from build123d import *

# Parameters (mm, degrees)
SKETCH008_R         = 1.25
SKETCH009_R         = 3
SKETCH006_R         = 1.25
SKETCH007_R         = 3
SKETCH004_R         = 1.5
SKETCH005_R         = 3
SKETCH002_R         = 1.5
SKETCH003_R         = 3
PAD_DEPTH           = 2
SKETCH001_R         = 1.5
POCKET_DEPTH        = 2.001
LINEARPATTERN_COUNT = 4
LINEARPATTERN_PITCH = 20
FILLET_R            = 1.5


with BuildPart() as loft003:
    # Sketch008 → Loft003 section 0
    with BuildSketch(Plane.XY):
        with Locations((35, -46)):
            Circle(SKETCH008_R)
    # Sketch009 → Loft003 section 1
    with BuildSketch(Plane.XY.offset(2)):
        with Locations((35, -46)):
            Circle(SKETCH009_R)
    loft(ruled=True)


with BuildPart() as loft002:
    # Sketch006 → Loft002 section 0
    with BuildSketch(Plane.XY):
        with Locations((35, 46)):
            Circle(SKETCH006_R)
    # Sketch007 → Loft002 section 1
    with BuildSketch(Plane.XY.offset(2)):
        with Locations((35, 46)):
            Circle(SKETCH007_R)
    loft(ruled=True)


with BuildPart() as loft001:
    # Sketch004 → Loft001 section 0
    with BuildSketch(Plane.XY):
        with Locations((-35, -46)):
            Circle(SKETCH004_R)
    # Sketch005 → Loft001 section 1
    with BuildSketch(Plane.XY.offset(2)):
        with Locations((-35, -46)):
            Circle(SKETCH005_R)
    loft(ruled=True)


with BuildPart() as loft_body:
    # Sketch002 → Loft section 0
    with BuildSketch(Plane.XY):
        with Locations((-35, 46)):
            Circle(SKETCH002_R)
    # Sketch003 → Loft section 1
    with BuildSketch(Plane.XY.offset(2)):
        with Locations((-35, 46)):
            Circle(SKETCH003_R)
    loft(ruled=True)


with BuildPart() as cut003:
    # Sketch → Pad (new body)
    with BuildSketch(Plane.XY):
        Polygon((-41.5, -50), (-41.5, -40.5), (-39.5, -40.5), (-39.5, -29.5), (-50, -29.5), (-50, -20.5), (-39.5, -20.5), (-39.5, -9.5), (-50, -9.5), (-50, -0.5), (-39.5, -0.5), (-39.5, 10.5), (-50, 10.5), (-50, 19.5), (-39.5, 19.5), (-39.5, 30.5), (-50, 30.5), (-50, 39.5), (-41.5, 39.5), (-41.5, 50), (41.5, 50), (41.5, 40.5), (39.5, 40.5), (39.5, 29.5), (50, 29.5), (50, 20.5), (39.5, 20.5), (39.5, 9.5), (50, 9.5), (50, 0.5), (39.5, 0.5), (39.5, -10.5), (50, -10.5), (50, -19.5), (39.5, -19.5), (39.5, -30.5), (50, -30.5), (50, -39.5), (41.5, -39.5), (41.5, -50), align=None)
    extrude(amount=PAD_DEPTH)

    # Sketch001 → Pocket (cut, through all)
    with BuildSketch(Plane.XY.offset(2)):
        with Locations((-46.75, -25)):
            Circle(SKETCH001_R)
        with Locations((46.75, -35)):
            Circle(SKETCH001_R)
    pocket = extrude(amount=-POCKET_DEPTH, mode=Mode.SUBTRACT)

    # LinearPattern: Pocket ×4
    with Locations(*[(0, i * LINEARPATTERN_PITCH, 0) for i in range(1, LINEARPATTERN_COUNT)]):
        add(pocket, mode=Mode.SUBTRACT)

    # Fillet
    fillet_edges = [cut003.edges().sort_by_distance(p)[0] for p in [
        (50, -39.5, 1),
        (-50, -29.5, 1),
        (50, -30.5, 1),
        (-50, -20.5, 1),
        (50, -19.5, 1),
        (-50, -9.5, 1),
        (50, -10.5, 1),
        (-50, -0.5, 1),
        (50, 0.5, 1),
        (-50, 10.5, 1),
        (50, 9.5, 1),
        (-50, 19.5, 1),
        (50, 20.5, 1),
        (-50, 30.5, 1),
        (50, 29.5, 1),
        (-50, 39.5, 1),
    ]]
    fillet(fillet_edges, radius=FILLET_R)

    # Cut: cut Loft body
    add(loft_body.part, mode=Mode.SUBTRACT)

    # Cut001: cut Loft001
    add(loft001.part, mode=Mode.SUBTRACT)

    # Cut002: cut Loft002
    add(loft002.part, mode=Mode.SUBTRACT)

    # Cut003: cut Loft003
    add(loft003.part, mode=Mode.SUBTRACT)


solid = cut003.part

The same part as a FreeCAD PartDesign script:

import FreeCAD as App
import Part
import Sketcher

V = App.Vector


def edges_at(feature, points):
    """Names of the edges that pass closest to the given points."""
    edges = feature.Shape.Edges
    near = lambda p: min(range(len(edges)), key=lambda i: edges[i].distToShape(Part.Vertex(*p))[0])
    return sorted({f"Edge{near(p) + 1}" for p in points})


def add_polygon(sketch, points):
    """Adds a closed chain of lines whose ends are joined by coincident constraints."""
    first, n = sketch.GeometryCount, len(points)
    for a, b in zip(points, points[1:] + points[:1]):
        sketch.addGeometry(Part.LineSegment(App.Vector(*a, 0), App.Vector(*b, 0)), False)
    for i in range(n):
        sketch.addConstraint(Sketcher.Constraint("Coincident", first + i, 2, first + (i + 1) % n, 1))

doc = App.newDocument("Part")
body = doc.addObject("PartDesign::Body", "Body")

sketch1 = body.newObject("Sketcher::SketchObject", "Sketch")
sketch1.AttachmentSupport = (doc.getObject("XY_Plane"), [""])
sketch1.MapMode = "FlatFace"
sketch1.addGeometry(Part.Circle(V(35, -46, 0), V(0, 0, 1), 1.2), False)
sketch1.addConstraint(Sketcher.Constraint("Diameter", 0, 2.5))
sketch1.addConstraint(Sketcher.Constraint("DistanceX", -1, 1, 0, 3, 35.0))
sketch1.addConstraint(Sketcher.Constraint("DistanceY", 0, 3, -1, 1, 46.0))

sketch2 = body.newObject("Sketcher::SketchObject", "Sketch001")
sketch2.AttachmentSupport = (doc.getObject("XY_Plane"), [""])
sketch2.MapMode = "FlatFace"
sketch2.AttachmentOffset = App.Placement(V(0, 0, 2), App.Rotation())
sketch2.addGeometry(Part.Circle(V(35, -46, 0), V(0, 0, 1), 3), False)
sketch2.addConstraint(Sketcher.Constraint("Diameter", 0, 6.0))
sketch2.addConstraint(Sketcher.Constraint("DistanceX", -1, 1, 0, 3, 35.0))
sketch2.addConstraint(Sketcher.Constraint("DistanceY", 0, 3, -1, 1, 46.0))

additiveloft = body.newObject("PartDesign::AdditiveLoft", "AdditiveLoft")
additiveloft.Profile = sketch1
additiveloft.Sections = [sketch2]
additiveloft.Ruled = True
body2 = doc.addObject("PartDesign::Body", "Body001")

sketch3 = body2.newObject("Sketcher::SketchObject", "Sketch002")
sketch3.AttachmentSupport = (doc.getObject("XY_Plane001"), [""])
sketch3.MapMode = "FlatFace"
sketch3.addGeometry(Part.Circle(V(35, 46, 0), V(0, 0, 1), 1.2), False)
sketch3.addConstraint(Sketcher.Constraint("Diameter", 0, 2.5))
sketch3.addConstraint(Sketcher.Constraint("DistanceX", -1, 1, 0, 3, 35.0))
sketch3.addConstraint(Sketcher.Constraint("DistanceY", -1, 1, 0, 3, 46.0))

sketch4 = body2.newObject("Sketcher::SketchObject", "Sketch003")
sketch4.AttachmentSupport = (doc.getObject("XY_Plane001"), [""])
sketch4.MapMode = "FlatFace"
sketch4.AttachmentOffset = App.Placement(V(0, 0, 2), App.Rotation())
sketch4.addGeometry(Part.Circle(V(35, 46, 0), V(0, 0, 1), 3), False)
sketch4.addConstraint(Sketcher.Constraint("Diameter", 0, 6.0))
sketch4.addConstraint(Sketcher.Constraint("DistanceX", -1, 1, 0, 3, 35.0))
sketch4.addConstraint(Sketcher.Constraint("DistanceY", -1, 1, 0, 3, 46.0))

additiveloft2 = body2.newObject("PartDesign::AdditiveLoft", "AdditiveLoft001")
additiveloft2.Profile = sketch3
additiveloft2.Sections = [sketch4]
additiveloft2.Ruled = True
body3 = doc.addObject("PartDesign::Body", "Body002")

sketch5 = body3.newObject("Sketcher::SketchObject", "Sketch004")
sketch5.AttachmentSupport = (doc.getObject("XY_Plane002"), [""])
sketch5.MapMode = "FlatFace"
sketch5.addGeometry(Part.Circle(V(-35, -46, 0), V(0, 0, 1), 1.5), False)
sketch5.addConstraint(Sketcher.Constraint("Diameter", 0, 3.0))
sketch5.addConstraint(Sketcher.Constraint("DistanceX", 0, 3, -1, 1, 35.0))
sketch5.addConstraint(Sketcher.Constraint("DistanceY", 0, 3, -1, 1, 46.0))

sketch6 = body3.newObject("Sketcher::SketchObject", "Sketch005")
sketch6.AttachmentSupport = (doc.getObject("XY_Plane002"), [""])
sketch6.MapMode = "FlatFace"
sketch6.AttachmentOffset = App.Placement(V(0, 0, 2), App.Rotation())
sketch6.addGeometry(Part.Circle(V(-35, -46, 0), V(0, 0, 1), 3), False)
sketch6.addConstraint(Sketcher.Constraint("Diameter", 0, 6.0))
sketch6.addConstraint(Sketcher.Constraint("DistanceX", 0, 3, -1, 1, 35.0))
sketch6.addConstraint(Sketcher.Constraint("DistanceY", 0, 3, -1, 1, 46.0))

additiveloft3 = body3.newObject("PartDesign::AdditiveLoft", "AdditiveLoft002")
additiveloft3.Profile = sketch5
additiveloft3.Sections = [sketch6]
additiveloft3.Ruled = True
body4 = doc.addObject("PartDesign::Body", "Body003")

sketch7 = body4.newObject("Sketcher::SketchObject", "Sketch006")
sketch7.AttachmentSupport = (doc.getObject("XY_Plane003"), [""])
sketch7.MapMode = "FlatFace"
sketch7.addGeometry(Part.Circle(V(-35, 46, 0), V(0, 0, 1), 1.5), False)
sketch7.addConstraint(Sketcher.Constraint("Diameter", 0, 3.0))
sketch7.addConstraint(Sketcher.Constraint("DistanceX", 0, 3, -1, 1, 35.0))
sketch7.addConstraint(Sketcher.Constraint("DistanceY", -1, 1, 0, 3, 46.0))

sketch8 = body4.newObject("Sketcher::SketchObject", "Sketch007")
sketch8.AttachmentSupport = (doc.getObject("XY_Plane003"), [""])
sketch8.MapMode = "FlatFace"
sketch8.AttachmentOffset = App.Placement(V(0, 0, 2), App.Rotation())
sketch8.addGeometry(Part.Circle(V(-35, 46, 0), V(0, 0, 1), 3), False)
sketch8.addConstraint(Sketcher.Constraint("Diameter", 0, 6.0))
sketch8.addConstraint(Sketcher.Constraint("DistanceX", 0, 3, -1, 1, 35.0))
sketch8.addConstraint(Sketcher.Constraint("DistanceY", -1, 1, 0, 3, 46.0))

additiveloft4 = body4.newObject("PartDesign::AdditiveLoft", "AdditiveLoft003")
additiveloft4.Profile = sketch7
additiveloft4.Sections = [sketch8]
additiveloft4.Ruled = True
body5 = doc.addObject("PartDesign::Body", "Body004")

sketch9 = body5.newObject("Sketcher::SketchObject", "Sketch008")
sketch9.AttachmentSupport = (doc.getObject("XY_Plane004"), [""])
sketch9.MapMode = "FlatFace"
add_polygon(sketch9, [(-41.5, -40.5), (-41.5, -50), (41.5, -50), (41.5, -39.5), (50, -39.5), (50, -30.5), (39.5, -30.5), (39.5, -19.5), (50, -19.5), (50, -10.5), (39.5, -10.5), (39.5, 0.5), (50, 0.5), (50, 9.5), (39.5, 9.5), (39.5, 20.5), (50, 20.5), (50, 29.5), (39.5, 29.5), (39.5, 40.5), (41.5, 40.5), (41.5, 50), (-41.5, 50), (-41.5, 39.5), (-50, 39.5), (-50, 30.5), (-39.5, 30.5), (-39.5, 19.5), (-50, 19.5), (-50, 10.5), (-39.5, 10.5), (-39.5, -0.5), (-50, -0.5), (-50, -9.5), (-39.5, -9.5), (-39.5, -20.5), (-50, -20.5), (-50, -29.5), (-39.5, -29.5), (-39.5, -40.5)])
sketch9.addConstraint(Sketcher.Constraint("Vertical", 0))
sketch9.addConstraint(Sketcher.Constraint("Horizontal", 1))
sketch9.addConstraint(Sketcher.Constraint("Vertical", 2))
sketch9.addConstraint(Sketcher.Constraint("Horizontal", 3))
sketch9.addConstraint(Sketcher.Constraint("Vertical", 4))
sketch9.addConstraint(Sketcher.Constraint("Horizontal", 5))
sketch9.addConstraint(Sketcher.Constraint("Vertical", 6))
sketch9.addConstraint(Sketcher.Constraint("Horizontal", 7))
sketch9.addConstraint(Sketcher.Constraint("Vertical", 8))
sketch9.addConstraint(Sketcher.Constraint("Horizontal", 9))
sketch9.addConstraint(Sketcher.Constraint("Vertical", 10))
sketch9.addConstraint(Sketcher.Constraint("Horizontal", 11))
sketch9.addConstraint(Sketcher.Constraint("Vertical", 12))
sketch9.addConstraint(Sketcher.Constraint("Horizontal", 13))
sketch9.addConstraint(Sketcher.Constraint("Vertical", 14))
sketch9.addConstraint(Sketcher.Constraint("Horizontal", 15))
sketch9.addConstraint(Sketcher.Constraint("Vertical", 16))
sketch9.addConstraint(Sketcher.Constraint("Horizontal", 17))
sketch9.addConstraint(Sketcher.Constraint("Vertical", 18))
sketch9.addConstraint(Sketcher.Constraint("Horizontal", 19))
sketch9.addConstraint(Sketcher.Constraint("Vertical", 20))
sketch9.addConstraint(Sketcher.Constraint("Horizontal", 21))
sketch9.addConstraint(Sketcher.Constraint("Vertical", 22))
sketch9.addConstraint(Sketcher.Constraint("Horizontal", 23))
sketch9.addConstraint(Sketcher.Constraint("Vertical", 24))
sketch9.addConstraint(Sketcher.Constraint("Horizontal", 25))
sketch9.addConstraint(Sketcher.Constraint("Vertical", 26))
sketch9.addConstraint(Sketcher.Constraint("Horizontal", 27))
sketch9.addConstraint(Sketcher.Constraint("Vertical", 28))
sketch9.addConstraint(Sketcher.Constraint("Horizontal", 29))
sketch9.addConstraint(Sketcher.Constraint("Vertical", 30))
sketch9.addConstraint(Sketcher.Constraint("Horizontal", 31))
sketch9.addConstraint(Sketcher.Constraint("Vertical", 32))
sketch9.addConstraint(Sketcher.Constraint("Horizontal", 33))
sketch9.addConstraint(Sketcher.Constraint("Vertical", 34))
sketch9.addConstraint(Sketcher.Constraint("Horizontal", 35))
sketch9.addConstraint(Sketcher.Constraint("Vertical", 36))
sketch9.addConstraint(Sketcher.Constraint("Horizontal", 37))
sketch9.addConstraint(Sketcher.Constraint("Vertical", 38))
sketch9.addConstraint(Sketcher.Constraint("Horizontal", 39))
sketch9.addConstraint(Sketcher.Constraint("Symmetric", 0, 2, 20, 2, -1, 1))
sketch9.addConstraint(Sketcher.Constraint("Symmetric", 2, 2, 22, 2, -1, 1))
sketch9.addConstraint(Sketcher.Constraint("Symmetric", 4, 2, 24, 2, -1, 1))
sketch9.addConstraint(Sketcher.Constraint("Symmetric", 6, 2, 26, 2, -1, 1))
sketch9.addConstraint(Sketcher.Constraint("Symmetric", 8, 2, 28, 2, -1, 1))
sketch9.addConstraint(Sketcher.Constraint("Symmetric", 10, 2, 30, 2, -1, 1))
sketch9.addConstraint(Sketcher.Constraint("Symmetric", 12, 2, 32, 2, -1, 1))
sketch9.addConstraint(Sketcher.Constraint("Symmetric", 14, 2, 34, 2, -1, 1))
sketch9.addConstraint(Sketcher.Constraint("Symmetric", 16, 2, 36, 2, -1, 1))
sketch9.addConstraint(Sketcher.Constraint("Symmetric", 18, 2, 38, 2, -1, 1))
sketch9.addConstraint(Sketcher.Constraint("Vertical", 4, 2, 7, 2))
sketch9.addConstraint(Sketcher.Constraint("Vertical", 6, 2, 9, 2))
sketch9.addConstraint(Sketcher.Constraint("Vertical", 8, 2, 11, 2))
sketch9.addConstraint(Sketcher.Constraint("Vertical", 10, 2, 13, 2))
sketch9.addConstraint(Sketcher.Constraint("Vertical", 12, 2, 15, 2))
sketch9.addConstraint(Sketcher.Constraint("Vertical", 14, 2, 17, 2))
sketch9.addConstraint(Sketcher.Constraint("Vertical", 2, 2, 19, 2))
sketch9.addConstraint(Sketcher.Constraint("Equal", 37, 2))
sketch9.addConstraint(Sketcher.Constraint("Equal", 4, 8))
sketch9.addConstraint(Sketcher.Constraint("Equal", 6, 10))
sketch9.addConstraint(Sketcher.Constraint("Equal", 8, 12))
sketch9.addConstraint(Sketcher.Constraint("Equal", 10, 14))
sketch9.addConstraint(Sketcher.Constraint("Equal", 12, 16))
sketch9.addConstraint(Sketcher.Constraint("Equal", 14, 18))
sketch9.addConstraint(Sketcher.Constraint("DistanceX", 1, 1, 1, 2, 83.0))
sketch9.addConstraint(Sketcher.Constraint("DistanceX", 19, 1, 19, 2, 2.0))
sketch9.addConstraint(Sketcher.Constraint("DistanceY", 4, 1, 4, 2, 9.0))
sketch9.addConstraint(Sketcher.Constraint("DistanceY", 6, 1, 6, 2, 11.0))
sketch9.addConstraint(Sketcher.Constraint("DistanceX", 3, 1, 3, 2, 8.5))
sketch9.addConstraint(Sketcher.Constraint("DistanceY", 0, 2, 0, 1, 9.5))
pad1 = body5.newObject("PartDesign::Pad", "Pad")
pad1.Profile = sketch9
pad1.Length = 2

sketch10 = body5.newObject("Sketcher::SketchObject", "Sketch009")
sketch10.AttachmentSupport = (doc.getObject("XY_Plane004"), [""])
sketch10.MapMode = "FlatFace"
sketch10.AttachmentOffset = App.Placement(V(0, 0, 2), App.Rotation())
sketch10.addGeometry(Part.Circle(V(-46.8, -25, 0), V(0, 0, 1), 1.5), False)
sketch10.addGeometry(Part.Circle(V(46.8, -35, 0), V(0, 0, 1), 1.5), False)
sketch10.addConstraint(Sketcher.Constraint("Equal", 0, 1))
sketch10.addConstraint(Sketcher.Constraint("Diameter", 0, 3.0))
sketch10.addConstraint(Sketcher.Constraint("DistanceY", 0, 3, -1, 1, 25.0))
sketch10.addConstraint(Sketcher.Constraint("DistanceY", 1, 3, -1, 1, 35.0))
sketch10.addConstraint(Sketcher.Constraint("DistanceX", 0, 3, 1, 3, 93.5))
sketch10.addConstraint(Sketcher.Constraint("DistanceX", 0, 3, -1, 1, 46.75))
pocket1 = body5.newObject("PartDesign::Pocket", "Pocket")
pocket1.Profile = sketch10
pocket1.Type = "ThroughAll"
doc.recompute()

linearpattern = body5.newObject("PartDesign::LinearPattern", "LinearPattern")
linearpattern.Originals = [pocket1]
linearpattern.Direction = (doc.getObject("Y_Axis004"), [""])
linearpattern.Mode = "offset"
linearpattern.Offset = 20
linearpattern.Occurrences = 4
body5.Tip = linearpattern
doc.recompute()

fillet = body5.newObject("PartDesign::Fillet", "Fillet")
fillet.Base = (linearpattern, edges_at(linearpattern, [
    (50, -39.5, 1),
    (-50, -29.5, 1),
    (50, -30.5, 1),
    (-50, -20.5, 1),
    (50, -19.5, 1),
    (-50, -9.5, 1),
    (50, -10.5, 1),
    (-50, -0.5, 1),
    (50, 0.5, 1),
    (-50, 10.5, 1),
    (50, 9.5, 1),
    (-50, 19.5, 1),
    (50, 20.5, 1),
    (-50, 30.5, 1),
    (50, 29.5, 1),
    (-50, 39.5, 1),
]))
fillet.Radius = 1.5
doc.recompute()

boolean = body5.newObject("PartDesign::Boolean", "Boolean")
boolean.Type = "Cut"
boolean.addObjects([body4])
doc.recompute()

boolean2 = body5.newObject("PartDesign::Boolean", "Boolean001")
boolean2.Type = "Cut"
boolean2.addObjects([body3])
doc.recompute()

boolean3 = body5.newObject("PartDesign::Boolean", "Boolean002")
boolean3.Type = "Cut"
boolean3.addObjects([body2])
doc.recompute()

boolean4 = body5.newObject("PartDesign::Boolean", "Boolean003")
boolean4.Type = "Cut"
boolean4.addObjects([body])

doc.recompute()
